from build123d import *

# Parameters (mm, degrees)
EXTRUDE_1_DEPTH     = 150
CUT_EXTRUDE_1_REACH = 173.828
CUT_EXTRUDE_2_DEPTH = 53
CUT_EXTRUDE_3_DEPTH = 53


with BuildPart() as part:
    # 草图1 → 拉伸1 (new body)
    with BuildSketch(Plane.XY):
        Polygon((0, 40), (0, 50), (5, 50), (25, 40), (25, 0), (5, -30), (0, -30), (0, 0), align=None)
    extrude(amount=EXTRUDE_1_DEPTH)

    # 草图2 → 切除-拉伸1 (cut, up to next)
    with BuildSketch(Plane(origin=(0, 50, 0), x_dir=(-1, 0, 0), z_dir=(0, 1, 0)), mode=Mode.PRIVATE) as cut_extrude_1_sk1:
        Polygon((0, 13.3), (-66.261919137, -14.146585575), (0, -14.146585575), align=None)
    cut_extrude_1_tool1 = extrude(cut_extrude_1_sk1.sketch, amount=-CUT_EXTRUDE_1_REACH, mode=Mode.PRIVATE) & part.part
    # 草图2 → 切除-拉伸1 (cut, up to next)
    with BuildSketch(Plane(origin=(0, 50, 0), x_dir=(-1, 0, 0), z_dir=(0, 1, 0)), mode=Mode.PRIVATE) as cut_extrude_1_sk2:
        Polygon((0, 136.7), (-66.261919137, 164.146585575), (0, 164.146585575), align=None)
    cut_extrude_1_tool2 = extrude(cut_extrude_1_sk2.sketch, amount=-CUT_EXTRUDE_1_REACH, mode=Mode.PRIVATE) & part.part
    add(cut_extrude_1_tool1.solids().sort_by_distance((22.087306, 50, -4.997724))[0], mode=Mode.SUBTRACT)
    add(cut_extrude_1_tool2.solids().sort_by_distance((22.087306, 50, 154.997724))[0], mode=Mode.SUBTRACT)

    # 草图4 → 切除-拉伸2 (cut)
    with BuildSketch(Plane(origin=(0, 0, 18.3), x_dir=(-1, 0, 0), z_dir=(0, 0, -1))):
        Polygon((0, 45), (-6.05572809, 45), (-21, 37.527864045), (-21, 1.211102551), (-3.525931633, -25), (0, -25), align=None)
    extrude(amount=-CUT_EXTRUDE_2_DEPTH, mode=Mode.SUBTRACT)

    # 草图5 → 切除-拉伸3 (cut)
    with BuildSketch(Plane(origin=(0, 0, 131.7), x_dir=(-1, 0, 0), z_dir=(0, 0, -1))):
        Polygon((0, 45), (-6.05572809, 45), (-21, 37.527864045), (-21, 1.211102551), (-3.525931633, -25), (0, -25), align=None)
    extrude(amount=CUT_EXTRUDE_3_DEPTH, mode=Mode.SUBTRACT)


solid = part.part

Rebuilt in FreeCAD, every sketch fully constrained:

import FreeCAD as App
import Part
import Sketcher
from FreeCAD import Vector
Q = App.Units.Quantity

doc = App.newDocument("Part")
body = doc.addObject("PartDesign::Body", "Body")

# Sketch on XY plane
sketch1 = doc.addObject("Sketcher::SketchObject", "Sketch")
body.addObject(sketch1)
sketch1.AttachmentSupport = (doc.XY_Plane, [""])
sketch1.MapMode = "FlatFace"
sketch1.addGeometry([
    Part.LineSegment(Vector(0, 50, 0), Vector(0, -30, 0)),  # 0
    Part.LineSegment(Vector(0, -30, 0), Vector(5, -30, 0)),  # 1
    Part.LineSegment(Vector(5, -30, 0), Vector(25, 0, 0)),  # 2
    Part.LineSegment(Vector(25, 0, 0), Vector(25, 40, 0)),  # 3
    Part.LineSegment(Vector(25, 40, 0), Vector(5, 50, 0)),  # 4
    Part.LineSegment(Vector(5, 50, 0), Vector(0, 50, 0)),  # 5
], False)
sketch1.addConstraint([
    Sketcher.Constraint("Coincident", 0, 2, 1, 1),
    Sketcher.Constraint("Coincident", 1, 2, 2, 1),
    Sketcher.Constraint("Coincident", 2, 2, 3, 1),
    Sketcher.Constraint("Coincident", 3, 2, 4, 1),
    Sketcher.Constraint("Coincident", 4, 2, 5, 1),
    Sketcher.Constraint("Coincident", 5, 2, 0, 1),
    Sketcher.Constraint("Vertical", 0),
    Sketcher.Constraint("Horizontal", 1),
    Sketcher.Constraint("Vertical", 3),
    Sketcher.Constraint("Horizontal", 5),
    Sketcher.Constraint("PointOnObject", 0, 2, -2),
    Sketcher.Constraint("PointOnObject", 2, 2, -1),
    Sketcher.Constraint("Vertical", 1, 2, 4, 2),
    Sketcher.Constraint("DistanceX", 1, 1, 1, 2, Q("5 mm")),
    Sketcher.Constraint("DistanceY", 0, 2, 0, 1, Q("80 mm")),
    Sketcher.Constraint("DistanceY", 3, 1, 3, 2, Q("40 mm")),
    Sketcher.Constraint("DistanceY", 0, 2, -1, 1, Q("30 mm")),
    Sketcher.Constraint("DistanceX", -1, 1, 2, 2, Q("25 mm")),
])
pad1 = doc.addObject("PartDesign::Pad", "Pad")
body.addObject(pad1)
pad1.Profile = sketch1
pad1.Length = 150

# Sketch on XZ plane
sketch2 = doc.addObject("Sketcher::SketchObject", "Sketch001")
body.addObject(sketch2)
sketch2.AttachmentSupport = (doc.XZ_Plane, [""])
sketch2.MapMode = "FlatFace"
sketch2.AttachmentOffset = App.Placement(Vector(0, 0, -50), App.Rotation())
sketch2.addGeometry([
    Part.LineSegment(Vector(0, 13, 0), Vector(66, -14, 0)),
    Part.LineSegment(Vector(66, -14, 0), Vector(0, -14, 0)),
    Part.LineSegment(Vector(0, -14, 0), Vector(0, 13, 0)),
], False)
sketch2.addConstraint([
    Sketcher.Constraint("Coincident", 0, 2, 1, 1),
    Sketcher.Constraint("Coincident", 1, 2, 2, 1),
    Sketcher.Constraint("Coincident", 2, 2, 0, 1),
    Sketcher.Constraint("Horizontal", 1),
    Sketcher.Constraint("Vertical", 2),
    Sketcher.Constraint("PointOnObject", 1, 2, -2),
    Sketcher.Constraint("Angle", 0, Q("-22.5 deg")),
    Sketcher.Constraint("DistanceY", -1, 1, 2, 2, Q("13.3 mm")),
    Sketcher.Constraint("DistanceX", 1, 2, 1, 1, Q("66.261919 mm")),
])
pocket1 = doc.addObject("PartDesign::Pocket", "Pocket")
body.addObject(pocket1)
pocket1.Profile = sketch2
pocket1.Length = 80
pocket1.Reversed = True

# Sketch on XZ plane
sketch3 = doc.addObject("Sketcher::SketchObject", "Sketch002")
body.addObject(sketch3)
sketch3.AttachmentSupport = (doc.XZ_Plane, [""])
sketch3.MapMode = "FlatFace"
sketch3.AttachmentOffset = App.Placement(Vector(0, 0, -50), App.Rotation())
sketch3.addGeometry([
    Part.LineSegment(Vector(66, 164, 0), Vector(0, 137, 0)),
    Part.LineSegment(Vector(0, 137, 0), Vector(0, 164, 0)),
    Part.LineSegment(Vector(0, 164, 0), Vector(66, 164, 0)),
], False)
sketch3.addConstraint([
    Sketcher.Constraint("Coincident", 0, 2, 1, 1),
    Sketcher.Constraint("Coincident", 1, 2, 2, 1),
    Sketcher.Constraint("Coincident", 2, 2, 0, 1),
    Sketcher.Constraint("Vertical", 1),
    Sketcher.Constraint("Horizontal", 2),
    Sketcher.Constraint("PointOnObject", 0, 2, -2),
    Sketcher.Constraint("Angle", 0, Q("-157.5 deg")),
    Sketcher.Constraint("DistanceY", -1, 1, 0, 2, Q("136.7 mm")),
    Sketcher.Constraint("DistanceX", 2, 1, 2, 2, Q("66.261919 mm")),
])
pocket2 = doc.addObject("PartDesign::Pocket", "Pocket001")
body.addObject(pocket2)
pocket2.Profile = sketch3
pocket2.Length = 80
pocket2.Reversed = True

# Sketch on XY plane
sketch4 = doc.addObject("Sketcher::SketchObject", "Sketch003")
body.addObject(sketch4)
sketch4.AttachmentSupport = (doc.XY_Plane, [""])
sketch4.MapMode = "FlatFace"
sketch4.AttachmentOffset = App.Placement(Vector(0, 0, 18.3), App.Rotation())
sketch4.addGeometry([
    Part.LineSegment(Vector(0, 45, 0), Vector(6.1, 45, 0)),  # 0
    Part.LineSegment(Vector(6.1, 45, 0), Vector(21, 37.5, 0)),  # 1
    Part.LineSegment(Vector(21, 37.5, 0), Vector(21, 1.2, 0)),  # 2
    Part.LineSegment(Vector(21, 1.2, 0), Vector(3.5, -25, 0)),  # 3
    Part.LineSegment(Vector(3.5, -25, 0), Vector(0, -25, 0)),  # 4
    Part.LineSegment(Vector(0, -25, 0), Vector(0, 45, 0)),  # 5
], False)
sketch4.addConstraint([
    Sketcher.Constraint("Coincident", 0, 2, 1, 1),
    Sketcher.Constraint("Coincident", 1, 2, 2, 1),
    Sketcher.Constraint("Coincident", 2, 2, 3, 1),
    Sketcher.Constraint("Coincident", 3, 2, 4, 1),
    Sketcher.Constraint("Coincident", 4, 2, 5, 1),
    Sketcher.Constraint("Coincident", 5, 2, 0, 1),
    Sketcher.Constraint("Horizontal", 0),
    Sketcher.Constraint("Vertical", 2),
    Sketcher.Constraint("Horizontal", 4),
    Sketcher.Constraint("Vertical", 5),
    Sketcher.Constraint("PointOnObject", 4, 2, -2),
    Sketcher.Constraint("DistanceY", 5, 1, 5, 2, Q("70 mm")),
    Sketcher.Constraint("DistanceY", -1, 1, 0, 2, Q("45 mm")),
    Sketcher.Constraint("DistanceX", -1, 1, 1, 2, Q("21 mm")),
    Sketcher.Constraint("DistanceX", 0, 1, 0, 2, Q("6.055728 mm")),
    Sketcher.Constraint("DistanceX", 4, 2, 4, 1, Q("3.525932 mm")),
    Sketcher.Constraint("DistanceY", 2, 2, 2, 1, Q("36.316761 mm")),
    Sketcher.Constraint("Distance", 1, Q("16.708204 mm")),
])
pocket3 = doc.addObject("PartDesign::Pocket", "Pocket002")
body.addObject(pocket3)
pocket3.Profile = sketch4
pocket3.Length = 53
pocket3.Reversed = True

# Sketch on XY plane
sketch5 = doc.addObject("Sketcher::SketchObject", "Sketch004")
body.addObject(sketch5)
sketch5.AttachmentSupport = (doc.XY_Plane, [""])
sketch5.MapMode = "FlatFace"
sketch5.AttachmentOffset = App.Placement(Vector(0, 0, 131.7), App.Rotation())
sketch5.addGeometry([
    Part.LineSegment(Vector(0, 45, 0), Vector(6.1, 45, 0)),  # 0
    Part.LineSegment(Vector(6.1, 45, 0), Vector(21, 37.5, 0)),  # 1
    Part.LineSegment(Vector(21, 37.5, 0), Vector(21, 1.2, 0)),  # 2
    Part.LineSegment(Vector(21, 1.2, 0), Vector(3.5, -25, 0)),  # 3
    Part.LineSegment(Vector(3.5, -25, 0), Vector(0, -25, 0)),  # 4
    Part.LineSegment(Vector(0, -25, 0), Vector(0, 45, 0)),  # 5
], False)
sketch5.addConstraint([
    Sketcher.Constraint("Coincident", 0, 2, 1, 1),
    Sketcher.Constraint("Coincident", 1, 2, 2, 1),
    Sketcher.Constraint("Coincident", 2, 2, 3, 1),
    Sketcher.Constraint("Coincident", 3, 2, 4, 1),
    Sketcher.Constraint("Coincident", 4, 2, 5, 1),
    Sketcher.Constraint("Coincident", 5, 2, 0, 1),
    Sketcher.Constraint("Horizontal", 0),
    Sketcher.Constraint("Vertical", 2),
    Sketcher.Constraint("Horizontal", 4),
    Sketcher.Constraint("Vertical", 5),
    Sketcher.Constraint("PointOnObject", 4, 2, -2),
    Sketcher.Constraint("DistanceY", 5, 1, 5, 2, Q("70 mm")),
    Sketcher.Constraint("DistanceY", -1, 1, 0, 2, Q("45 mm")),
    Sketcher.Constraint("DistanceX", -1, 1, 1, 2, Q("21 mm")),
    Sketcher.Constraint("DistanceX", 0, 1, 0, 2, Q("6.055728 mm")),
    Sketcher.Constraint("DistanceX", 4, 2, 4, 1, Q("3.525932 mm")),
    Sketcher.Constraint("DistanceY", 2, 2, 2, 1, Q("36.316761 mm")),
    Sketcher.Constraint("Distance", 1, Q("16.708204 mm")),
])
pocket4 = doc.addObject("PartDesign::Pocket", "Pocket003")
body.addObject(pocket4)
pocket4.Profile = sketch5
pocket4.Length = 53

doc.recompute()
